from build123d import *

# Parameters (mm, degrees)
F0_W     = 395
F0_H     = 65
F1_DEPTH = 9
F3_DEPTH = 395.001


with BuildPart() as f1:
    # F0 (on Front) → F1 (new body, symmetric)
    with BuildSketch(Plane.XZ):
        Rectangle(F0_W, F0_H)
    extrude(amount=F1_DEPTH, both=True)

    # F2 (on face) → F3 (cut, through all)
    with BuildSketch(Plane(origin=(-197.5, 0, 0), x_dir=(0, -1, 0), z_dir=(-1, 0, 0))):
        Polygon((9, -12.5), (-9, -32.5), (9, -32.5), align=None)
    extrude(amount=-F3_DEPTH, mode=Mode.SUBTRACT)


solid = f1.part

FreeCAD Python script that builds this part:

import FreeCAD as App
import Part
import Sketcher
Q = App.Units.Quantity


def add_polygon(sketch, points):
    """Adds a closed chain of lines whose ends are joined by coincident constraints."""
    first, n = sketch.GeometryCount, len(points)
    for a, b in zip(points, points[1:] + points[:1]):
        sketch.addGeometry(Part.LineSegment(App.Vector(*a, 0), App.Vector(*b, 0)), False)
    for i in range(n):
        sketch.addConstraint(Sketcher.Constraint("Coincident", first + i, 2, first + (i + 1) % n, 1))

doc = App.newDocument("Part")
body = doc.addObject("PartDesign::Body", "Body")

sketch1 = body.newObject("Sketcher::SketchObject", "Sketch")
sketch1.AttachmentSupport = (doc.getObject("XZ_Plane"), [""])
sketch1.MapMode = "FlatFace"
add_polygon(sketch1, [(-198, 32), (-198, -32), (198, -32), (198, 32)])
sketch1.addConstraint(Sketcher.Constraint("Vertical", 0))
sketch1.addConstraint(Sketcher.Constraint("Horizontal", 1))
sketch1.addConstraint(Sketcher.Constraint("Vertical", 2))
sketch1.addConstraint(Sketcher.Constraint("Horizontal", 3))
sketch1.addConstraint(Sketcher.Constraint("Symmetric", 0, 2, 2, 2, -1, 1))
sketch1.addConstraint(Sketcher.Constraint("DistanceX", 1, 1, 1, 2, Q("395 mm")))
sketch1.addConstraint(Sketcher.Constraint("DistanceY", 0, 2, 0, 1, Q("65 mm")))
pad1 = body.newObject("PartDesign::Pad", "Pad")
pad1.Profile = sketch1
pad1.Length = 18
pad1.Midplane = True

sketch2 = body.newObject("Sketcher::SketchObject", "Sketch001")
sketch2.AttachmentSupport = (doc.getObject("YZ_Plane"), [""])
sketch2.MapMode = "FlatFace"
sketch2.AttachmentOffset = App.Placement(App.Vector(0, 0, -197.5), App.Rotation())
add_polygon(sketch2, [(-9, -12), (9, -32), (-9, -32)])
sketch2.addConstraint(Sketcher.Constraint("Horizontal", 1))
sketch2.addConstraint(Sketcher.Constraint("Vertical", 2))
sketch2.addConstraint(Sketcher.Constraint("DistanceX", 1, 2, 1, 1, Q("18 mm")))
sketch2.addConstraint(Sketcher.Constraint("DistanceY", 2, 1, 2, 2, Q("20 mm")))
sketch2.addConstraint(Sketcher.Constraint("DistanceX", -1, 1, 0, 2, Q("9 mm")))
sketch2.addConstraint(Sketcher.Constraint("DistanceY", 0, 2, -1, 1, Q("32.5 mm")))
pocket1 = body.newObject("PartDesign::Pocket", "Pocket")
pocket1.Profile = sketch2
pocket1.Type = "ThroughAll"
pocket1.Reversed = True

doc.recompute()
